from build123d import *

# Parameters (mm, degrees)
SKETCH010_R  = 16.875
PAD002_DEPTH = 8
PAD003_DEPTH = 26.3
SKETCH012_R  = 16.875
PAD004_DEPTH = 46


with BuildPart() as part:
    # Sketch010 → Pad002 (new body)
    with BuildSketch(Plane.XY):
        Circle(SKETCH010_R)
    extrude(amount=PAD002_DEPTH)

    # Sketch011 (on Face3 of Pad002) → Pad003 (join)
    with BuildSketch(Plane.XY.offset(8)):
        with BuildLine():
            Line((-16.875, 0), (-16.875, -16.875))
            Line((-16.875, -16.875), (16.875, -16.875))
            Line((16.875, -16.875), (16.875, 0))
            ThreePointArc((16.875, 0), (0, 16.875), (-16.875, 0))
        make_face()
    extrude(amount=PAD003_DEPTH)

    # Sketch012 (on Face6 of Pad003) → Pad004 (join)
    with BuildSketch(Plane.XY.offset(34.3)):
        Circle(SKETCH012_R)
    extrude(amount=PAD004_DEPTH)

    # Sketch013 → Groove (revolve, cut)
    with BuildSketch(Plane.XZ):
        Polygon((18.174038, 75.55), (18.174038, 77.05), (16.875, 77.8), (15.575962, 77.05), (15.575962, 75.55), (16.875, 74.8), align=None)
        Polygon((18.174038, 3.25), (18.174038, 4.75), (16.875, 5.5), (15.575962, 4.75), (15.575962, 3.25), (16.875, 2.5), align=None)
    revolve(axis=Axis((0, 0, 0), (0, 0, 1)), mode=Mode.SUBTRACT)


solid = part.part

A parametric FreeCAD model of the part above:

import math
import FreeCAD as App
import Part
import Sketcher
Q = App.Units.Quantity


def add_polygon(sketch, points):
    """Adds a closed chain of lines whose ends are joined by coincident constraints."""
    first, n = sketch.GeometryCount, len(points)
    for a, b in zip(points, points[1:] + points[:1]):
        sketch.addGeometry(Part.LineSegment(App.Vector(*a, 0), App.Vector(*b, 0)), False)
    for i in range(n):
        sketch.addConstraint(Sketcher.Constraint("Coincident", first + i, 2, first + (i + 1) % n, 1))

doc = App.newDocument("Part")
body = doc.addObject("PartDesign::Body", "Body")

# Sketch on XY plane
sketch1 = doc.addObject("Sketcher::SketchObject", "Sketch")
body.addObject(sketch1)
sketch1.AttachmentSupport = (doc.XY_Plane, [""])
sketch1.MapMode = "FlatFace"
sketch1.addGeometry(Part.Circle(App.Vector(0, 0, 0), App.Vector(0, 0, 1), 16.875), False)
sketch1.addConstraint([
    Sketcher.Constraint("Coincident", 0, 3, -1, 1),
    Sketcher.Constraint("Diameter", 0, Q("33.75 mm")),
])
pad1 = doc.addObject("PartDesign::Pad", "Pad")
body.addObject(pad1)
pad1.Profile = sketch1
pad1.Length = 8

# Sketch on XY plane
sketch2 = doc.addObject("Sketcher::SketchObject", "Sketch001")
body.addObject(sketch2)
sketch2.AttachmentSupport = (doc.XY_Plane, [""])
sketch2.MapMode = "FlatFace"
sketch2.AttachmentOffset = App.Placement(App.Vector(0, 0, 8), App.Rotation())
sketch2.addGeometry([
    Part.LineSegment(App.Vector(-16.875, 0, 0), App.Vector(-16.875, -16.875, 0)),
    Part.LineSegment(App.Vector(-16.875, -16.875, 0), App.Vector(16.875, -16.875, 0)),
    Part.LineSegment(App.Vector(16.875, -16.875, 0), App.Vector(16.875, 0, 0)),
    Part.ArcOfCircle(Part.Circle(App.Vector(0, 0, 0), App.Vector(0, 0, 1), 16.875), math.radians(0), math.radians(180)),
], False)
sketch2.addConstraint([
    Sketcher.Constraint("Coincident", 0, 2, 1, 1),
    Sketcher.Constraint("Coincident", 1, 2, 2, 1),
    Sketcher.Constraint("Tangent", 2, 2, 3, 1),
    Sketcher.Constraint("Tangent", 3, 2, 0, 1),
    Sketcher.Constraint("Vertical", 0),
    Sketcher.Constraint("Horizontal", 1),
    Sketcher.Constraint("Vertical", 2),
    Sketcher.Constraint("Coincident", 3, 3, -1, 1),
    Sketcher.Constraint("Radius", 3, Q("16.875 mm")),
    Sketcher.Constraint("DistanceY", 0, 2, 0, 1, Q("16.875 mm")),
])
pad2 = doc.addObject("PartDesign::Pad", "Pad001")
body.addObject(pad2)
pad2.Profile = sketch2
pad2.Length = 26.3

# Sketch on XY plane
sketch3 = doc.addObject("Sketcher::SketchObject", "Sketch002")
body.addObject(sketch3)
sketch3.AttachmentSupport = (doc.XY_Plane, [""])
sketch3.MapMode = "FlatFace"
sketch3.AttachmentOffset = App.Placement(App.Vector(0, 0, 34.3), App.Rotation())
sketch3.addGeometry(Part.Circle(App.Vector(0, 0, 0), App.Vector(0, 0, 1), 16.875), False)
sketch3.addConstraint([
    Sketcher.Constraint("Coincident", 0, 3, -1, 1),
    Sketcher.Constraint("Diameter", 0, Q("33.75 mm")),
])
pad3 = doc.addObject("PartDesign::Pad", "Pad002")
body.addObject(pad3)
pad3.Profile = sketch3
pad3.Length = 46

# Sketch on XZ plane
sketch4 = doc.addObject("Sketcher::SketchObject", "Sketch003")
body.addObject(sketch4)
sketch4.AttachmentSupport = (doc.XZ_Plane, [""])
sketch4.MapMode = "FlatFace"
add_polygon(sketch4, [(18.174038, 75.55), (18.174038, 77.05), (16.875, 77.8), (15.575962, 77.05), (15.575962, 75.55), (16.875, 74.8)])  # lines 0-5
add_polygon(sketch4, [(18.174038, 3.25), (18.174038, 4.75), (16.875, 5.5), (15.575962, 4.75), (15.575962, 3.25), (16.875, 2.5)])  # lines 6-11
sketch4.addConstraint([
    Sketcher.Constraint("Vertical", 0),
    Sketcher.Constraint("Vertical", 3),
    Sketcher.Constraint("Vertical", 6),
    Sketcher.Constraint("Vertical", 9),
    Sketcher.Constraint("Parallel", 1, 4),
    Sketcher.Constraint("Parallel", 2, 5),
    Sketcher.Constraint("Parallel", 4, 7),
    Sketcher.Constraint("Parallel", 5, 8),
    Sketcher.Constraint("Parallel", 7, 10),
    Sketcher.Constraint("Parallel", 8, 11),
    Sketcher.Constraint("Horizontal", 0, 2, 2, 2),
    Sketcher.Constraint("Horizontal", 3, 2, 5, 2),
    Sketcher.Constraint("Horizontal", 6, 2, 8, 2),
    Sketcher.Constraint("Horizontal", 9, 2, 11, 2),
    Sketcher.Constraint("Vertical", 1, 2, 4, 2),
    Sketcher.Constraint("Vertical", 5, 2, 6, 2),
    Sketcher.Constraint("Vertical", 4, 2, 7, 2),
    Sketcher.Constraint("Equal", 3, 6),
    Sketcher.Constraint("Angle", 1, Q("149.999998 deg")),
    Sketcher.Constraint("DistanceY", 0, 1, 0, 2, Q("1.5 mm")),
    Sketcher.Constraint("DistanceY", 4, 2, 1, 2, Q("3 mm")),
    Sketcher.Constraint("DistanceY", -1, 1, 1, 2, Q("77.8 mm")),
    Sketcher.Constraint("DistanceY", -1, 1, 7, 2, Q("5.5 mm")),
    Sketcher.Constraint("DistanceX", -1, 1, 1, 2, Q("16.875 mm")),
])
groove = doc.addObject("PartDesign::Groove", "Groove")
body.addObject(groove)
groove.Profile = sketch4
groove.ReferenceAxis = (sketch4, ["V_Axis"])
groove.Angle = 360

doc.recompute()
